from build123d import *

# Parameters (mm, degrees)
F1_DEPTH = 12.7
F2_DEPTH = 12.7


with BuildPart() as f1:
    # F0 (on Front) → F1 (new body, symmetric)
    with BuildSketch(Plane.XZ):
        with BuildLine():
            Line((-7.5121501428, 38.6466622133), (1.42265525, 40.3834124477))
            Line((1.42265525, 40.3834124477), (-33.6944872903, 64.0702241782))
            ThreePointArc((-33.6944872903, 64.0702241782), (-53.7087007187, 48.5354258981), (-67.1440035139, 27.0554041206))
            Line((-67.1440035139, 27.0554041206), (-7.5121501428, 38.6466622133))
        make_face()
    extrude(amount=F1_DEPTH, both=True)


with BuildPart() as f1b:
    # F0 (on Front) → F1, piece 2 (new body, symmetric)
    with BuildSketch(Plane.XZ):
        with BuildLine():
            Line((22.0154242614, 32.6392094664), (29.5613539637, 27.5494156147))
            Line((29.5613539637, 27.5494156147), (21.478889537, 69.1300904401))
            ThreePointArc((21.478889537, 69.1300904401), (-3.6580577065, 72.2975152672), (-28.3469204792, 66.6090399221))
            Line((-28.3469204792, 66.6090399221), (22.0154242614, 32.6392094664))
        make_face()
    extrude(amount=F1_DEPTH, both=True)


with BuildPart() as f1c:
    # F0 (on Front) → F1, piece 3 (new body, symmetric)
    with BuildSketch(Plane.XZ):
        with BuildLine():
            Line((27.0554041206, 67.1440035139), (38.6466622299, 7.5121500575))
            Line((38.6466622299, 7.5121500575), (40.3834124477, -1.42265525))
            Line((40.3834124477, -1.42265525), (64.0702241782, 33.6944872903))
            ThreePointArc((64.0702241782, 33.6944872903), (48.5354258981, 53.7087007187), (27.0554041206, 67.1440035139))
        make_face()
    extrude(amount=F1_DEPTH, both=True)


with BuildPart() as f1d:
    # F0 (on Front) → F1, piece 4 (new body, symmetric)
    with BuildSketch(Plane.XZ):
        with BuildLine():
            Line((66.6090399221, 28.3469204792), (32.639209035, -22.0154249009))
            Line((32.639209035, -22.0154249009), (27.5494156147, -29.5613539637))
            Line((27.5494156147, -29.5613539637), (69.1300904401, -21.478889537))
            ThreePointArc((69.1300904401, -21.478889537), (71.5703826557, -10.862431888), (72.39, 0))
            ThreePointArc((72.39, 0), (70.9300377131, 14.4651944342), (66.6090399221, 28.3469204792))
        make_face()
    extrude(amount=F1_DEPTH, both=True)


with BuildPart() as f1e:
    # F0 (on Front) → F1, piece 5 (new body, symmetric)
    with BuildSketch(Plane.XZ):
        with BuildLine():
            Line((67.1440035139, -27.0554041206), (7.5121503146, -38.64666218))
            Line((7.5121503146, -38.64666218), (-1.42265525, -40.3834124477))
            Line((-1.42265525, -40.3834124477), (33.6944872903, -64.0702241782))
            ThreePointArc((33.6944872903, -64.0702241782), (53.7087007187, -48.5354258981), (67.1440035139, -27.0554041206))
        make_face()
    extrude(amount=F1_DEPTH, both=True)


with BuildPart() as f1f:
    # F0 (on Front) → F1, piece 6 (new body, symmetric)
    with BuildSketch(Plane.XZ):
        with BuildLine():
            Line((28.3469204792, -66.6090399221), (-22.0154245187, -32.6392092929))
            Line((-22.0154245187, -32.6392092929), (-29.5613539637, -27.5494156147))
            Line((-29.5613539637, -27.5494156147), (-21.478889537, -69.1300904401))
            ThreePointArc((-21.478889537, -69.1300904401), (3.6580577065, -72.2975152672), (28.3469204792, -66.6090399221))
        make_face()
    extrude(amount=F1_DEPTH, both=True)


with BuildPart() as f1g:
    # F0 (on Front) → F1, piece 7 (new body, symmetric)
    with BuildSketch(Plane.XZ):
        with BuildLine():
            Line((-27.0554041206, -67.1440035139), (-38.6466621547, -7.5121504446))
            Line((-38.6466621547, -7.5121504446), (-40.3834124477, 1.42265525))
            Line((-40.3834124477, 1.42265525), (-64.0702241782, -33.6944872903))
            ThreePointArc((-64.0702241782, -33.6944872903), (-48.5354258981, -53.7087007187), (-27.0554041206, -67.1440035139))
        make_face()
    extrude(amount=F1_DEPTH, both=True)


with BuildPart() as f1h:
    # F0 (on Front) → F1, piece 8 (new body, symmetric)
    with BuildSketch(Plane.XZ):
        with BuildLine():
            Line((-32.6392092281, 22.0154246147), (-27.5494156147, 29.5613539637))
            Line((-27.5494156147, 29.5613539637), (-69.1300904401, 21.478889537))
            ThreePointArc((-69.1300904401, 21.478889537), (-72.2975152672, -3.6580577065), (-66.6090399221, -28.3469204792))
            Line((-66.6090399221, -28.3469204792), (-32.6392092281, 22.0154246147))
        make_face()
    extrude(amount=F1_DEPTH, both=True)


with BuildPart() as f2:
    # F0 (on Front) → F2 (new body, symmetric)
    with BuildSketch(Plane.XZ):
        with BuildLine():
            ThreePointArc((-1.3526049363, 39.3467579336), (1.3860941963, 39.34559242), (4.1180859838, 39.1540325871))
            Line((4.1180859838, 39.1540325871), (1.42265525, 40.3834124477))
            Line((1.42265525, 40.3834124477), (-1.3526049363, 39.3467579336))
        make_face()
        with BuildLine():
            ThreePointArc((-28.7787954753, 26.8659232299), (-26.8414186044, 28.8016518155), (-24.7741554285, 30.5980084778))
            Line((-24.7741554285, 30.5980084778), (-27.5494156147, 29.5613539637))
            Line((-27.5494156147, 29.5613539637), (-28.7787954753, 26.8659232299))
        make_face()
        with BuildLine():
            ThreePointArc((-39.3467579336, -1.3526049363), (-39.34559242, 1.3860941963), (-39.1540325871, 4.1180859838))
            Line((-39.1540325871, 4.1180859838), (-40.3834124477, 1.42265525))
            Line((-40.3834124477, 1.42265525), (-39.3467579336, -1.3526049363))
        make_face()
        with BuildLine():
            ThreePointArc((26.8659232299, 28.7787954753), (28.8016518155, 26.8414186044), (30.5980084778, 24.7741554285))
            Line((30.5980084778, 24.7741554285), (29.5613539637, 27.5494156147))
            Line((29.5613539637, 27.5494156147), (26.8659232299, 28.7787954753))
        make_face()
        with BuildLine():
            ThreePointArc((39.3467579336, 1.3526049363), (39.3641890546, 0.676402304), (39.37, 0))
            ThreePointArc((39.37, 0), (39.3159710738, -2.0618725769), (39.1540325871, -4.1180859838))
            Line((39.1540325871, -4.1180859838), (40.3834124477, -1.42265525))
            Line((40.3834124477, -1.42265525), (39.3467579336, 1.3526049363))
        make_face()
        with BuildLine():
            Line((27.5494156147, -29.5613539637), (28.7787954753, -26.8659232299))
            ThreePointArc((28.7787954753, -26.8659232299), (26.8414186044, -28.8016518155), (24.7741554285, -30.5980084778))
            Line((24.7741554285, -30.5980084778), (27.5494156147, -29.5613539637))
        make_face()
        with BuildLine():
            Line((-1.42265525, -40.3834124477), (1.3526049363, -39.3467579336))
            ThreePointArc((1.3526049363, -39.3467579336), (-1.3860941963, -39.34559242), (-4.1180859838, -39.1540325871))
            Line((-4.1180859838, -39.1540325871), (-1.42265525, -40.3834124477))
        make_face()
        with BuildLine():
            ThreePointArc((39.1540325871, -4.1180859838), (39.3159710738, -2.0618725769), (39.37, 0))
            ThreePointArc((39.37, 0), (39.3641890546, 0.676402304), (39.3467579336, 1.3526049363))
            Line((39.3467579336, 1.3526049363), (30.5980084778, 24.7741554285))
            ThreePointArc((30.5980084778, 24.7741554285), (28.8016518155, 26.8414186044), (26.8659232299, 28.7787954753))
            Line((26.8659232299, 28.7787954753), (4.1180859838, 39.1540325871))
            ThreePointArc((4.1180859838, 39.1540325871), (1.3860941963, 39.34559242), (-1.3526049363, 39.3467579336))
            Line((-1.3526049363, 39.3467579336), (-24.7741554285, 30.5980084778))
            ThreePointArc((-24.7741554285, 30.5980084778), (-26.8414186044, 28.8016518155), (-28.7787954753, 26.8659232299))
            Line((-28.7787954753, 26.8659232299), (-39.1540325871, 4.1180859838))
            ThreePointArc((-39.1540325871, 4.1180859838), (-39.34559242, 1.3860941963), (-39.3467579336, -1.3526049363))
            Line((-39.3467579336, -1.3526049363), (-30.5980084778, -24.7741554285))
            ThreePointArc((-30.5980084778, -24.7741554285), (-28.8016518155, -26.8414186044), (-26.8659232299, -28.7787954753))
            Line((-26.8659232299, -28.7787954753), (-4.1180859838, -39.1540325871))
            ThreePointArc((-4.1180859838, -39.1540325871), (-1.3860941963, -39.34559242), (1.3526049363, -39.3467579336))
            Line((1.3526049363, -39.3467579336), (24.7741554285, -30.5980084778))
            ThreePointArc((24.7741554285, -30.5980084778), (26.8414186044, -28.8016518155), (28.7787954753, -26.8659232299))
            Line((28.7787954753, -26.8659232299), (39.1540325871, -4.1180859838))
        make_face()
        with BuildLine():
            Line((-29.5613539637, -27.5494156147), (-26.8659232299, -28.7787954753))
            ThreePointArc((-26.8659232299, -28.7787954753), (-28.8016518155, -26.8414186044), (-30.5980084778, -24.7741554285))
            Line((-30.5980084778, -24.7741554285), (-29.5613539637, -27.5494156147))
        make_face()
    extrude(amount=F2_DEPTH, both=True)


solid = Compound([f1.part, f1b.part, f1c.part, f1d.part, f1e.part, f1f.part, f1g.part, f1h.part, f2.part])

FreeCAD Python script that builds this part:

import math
import FreeCAD as App
import Part
import Sketcher
from FreeCAD import Vector
Q = App.Units.Quantity

doc = App.newDocument("Part")
body = doc.addObject("PartDesign::Body", "Body")

# Sketch on XZ plane
sketch1 = body.newObject("Sketcher::SketchObject", "Sketch")
sketch1.AttachmentSupport = (doc.getObject("XZ_Plane"), [""])
sketch1.MapMode = "FlatFace"
sketch1.addGeometry([
    Part.LineSegment(Vector(-7.51215, 38.646662, 0), Vector(1.422655, 40.383412, 0)),
    Part.LineSegment(Vector(1.422655, 40.383412, 0), Vector(-33.694487, 64.070224, 0)),
    Part.ArcOfCircle(Part.Circle(Vector(0, 0, 0), Vector(0, 0, 1), 72.39), math.radians(117.739852), math.radians(158.05323)),
    Part.LineSegment(Vector(-67.144004, 27.055404, 0), Vector(-7.51215, 38.646662, 0)),
], False)
sketch1.addConstraint([
    Sketcher.Constraint("Coincident", 0, 2, 1, 1),
    Sketcher.Constraint("Coincident", 1, 2, 2, 1),
    Sketcher.Constraint("Coincident", 2, 2, 3, 1),
    Sketcher.Constraint("Coincident", 3, 2, 0, 1),
    Sketcher.Constraint("Coincident", 2, 3, -1, 1),
    Sketcher.Constraint("Parallel", 0, 3),
    Sketcher.Constraint("Radius", 2, Q("2.85 in")),
    Sketcher.Constraint("Angle", 0, Q("11 deg")),
    Sketcher.Constraint("Angle", 1, Q("146 deg")),
    Sketcher.Constraint("DistanceX", 3, 2, -1, 1, Q("7.51215 mm")),
    Sketcher.Constraint("DistanceY", 0, 2, 1, 2, Q("23.686812 mm")),
    Sketcher.Constraint("DistanceX", 2, 2, 0, 2, Q("68.566659 mm")),
])
pad1 = body.newObject("PartDesign::Pad", "Pad")
pad1.Profile = sketch1
pad1.Length = Q("1 in")
pad1.Midplane = True
body2 = doc.addObject("PartDesign::Body", "Body001")

# Sketch on XZ plane
sketch2 = body2.newObject("Sketcher::SketchObject", "Sketch001")
sketch2.AttachmentSupport = (doc.getObject("XZ_Plane001"), [""])
sketch2.MapMode = "FlatFace"
sketch2.addGeometry([
    Part.LineSegment(Vector(29.561354, 27.549416, 0), Vector(21.47889, 69.13009, 0)),
    Part.ArcOfCircle(Part.Circle(Vector(0, 0, 0), Vector(0, 0, 1), 72.39), math.radians(72.739852), math.radians(113.05323)),
    Part.LineSegment(Vector(-28.34692, 66.60904, 0), Vector(29.561354, 27.549416, 0)),
], False)
sketch2.addConstraint([
    Sketcher.Constraint("Coincident", 0, 2, 1, 1),
    Sketcher.Constraint("Coincident", 1, 2, 2, 1),
    Sketcher.Constraint("Coincident", 2, 2, 0, 1),
    Sketcher.Constraint("Coincident", 1, 3, -1, 1),
    Sketcher.Constraint("Radius", 1, Q("2.85 in")),
    Sketcher.Constraint("Angle", 0, Q("101 deg")),
    Sketcher.Constraint("Angle", 2, Q("-34 deg")),
    Sketcher.Constraint("Distance", 2, Q("2.75 in")),
    Sketcher.Constraint("DistanceX", -1, 1, 0, 2, Q("21.47889 mm")),
])
pad2 = body2.newObject("PartDesign::Pad", "Pad001")
pad2.Profile = sketch2
pad2.Length = Q("1 in")
pad2.Midplane = True
body3 = doc.addObject("PartDesign::Body", "Body002")

# Sketch on XZ plane
sketch3 = body3.newObject("Sketcher::SketchObject", "Sketch002")
sketch3.AttachmentSupport = (doc.getObject("XZ_Plane002"), [""])
sketch3.MapMode = "FlatFace"
sketch3.addGeometry([
    Part.LineSegment(Vector(27.055404, 67.144004, 0), Vector(38.646662, 7.51215, 0)),
    Part.LineSegment(Vector(38.646662, 7.51215, 0), Vector(40.383412, -1.422655, 0)),
    Part.LineSegment(Vector(40.383412, -1.422655, 0), Vector(64.070224, 33.694487, 0)),
    Part.ArcOfCircle(Part.Circle(Vector(0, 0, 0), Vector(0, 0, 1), 72.39), math.radians(27.739852), math.radians(68.05323)),
], False)
sketch3.addConstraint([
    Sketcher.Constraint("Coincident", 0, 2, 1, 1),
    Sketcher.Constraint("Coincident", 1, 2, 2, 1),
    Sketcher.Constraint("Coincident", 2, 2, 3, 1),
    Sketcher.Constraint("Coincident", 3, 2, 0, 1),
    Sketcher.Constraint("Coincident", 3, 3, -1, 1),
    Sketcher.Constraint("Parallel", 0, 1),
    Sketcher.Constraint("Radius", 3, Q("2.85 in")),
    Sketcher.Constraint("Angle", 0, Q("-79 deg")),
    Sketcher.Constraint("Angle", 2, Q("56 deg")),
    Sketcher.Constraint("DistanceY", -1, 1, 0, 2, Q("7.51215 mm")),
    Sketcher.Constraint("DistanceX", 0, 2, 1, 2, Q("1.73675 mm")),
    Sketcher.Constraint("DistanceX", 0, 2, 2, 2, Q("25.423562 mm")),
])
pad3 = body3.newObject("PartDesign::Pad", "Pad002")
pad3.Profile = sketch3
pad3.Length = Q("1 in")
pad3.Midplane = True
body4 = doc.addObject("PartDesign::Body", "Body003")

# Sketch on XZ plane
sketch4 = body4.newObject("Sketcher::SketchObject", "Sketch003")
sketch4.AttachmentSupport = (doc.getObject("XZ_Plane003"), [""])
sketch4.MapMode = "FlatFace"
sketch4.addGeometry([
    Part.LineSegment(Vector(66.60904, 28.34692, 0), Vector(32.639209, -22.015425, 0)),  # 0
    Part.LineSegment(Vector(32.639209, -22.015425, 0), Vector(27.549416, -29.561354, 0)),  # 1
    Part.LineSegment(Vector(27.549416, -29.561354, 0), Vector(69.13009, -21.47889, 0)),  # 2
    Part.ArcOfCircle(Part.Circle(Vector(0, 0, 0), Vector(0, 0, 1), 72.39), math.radians(-17.260148), math.radians(0)),  # 3
    Part.ArcOfCircle(Part.Circle(Vector(0, 0, 0), Vector(0, 0, 1), 72.39), math.radians(0), math.radians(23.05323)),  # 4
], False)
sketch4.addConstraint([
    Sketcher.Constraint("Coincident", 0, 2, 1, 1),
    Sketcher.Constraint("Coincident", 1, 2, 2, 1),
    Sketcher.Constraint("Coincident", 2, 2, 3, 1),
    Sketcher.Constraint("Tangent", 3, 2, 4, 1),
    Sketcher.Constraint("Coincident", 4, 2, 0, 1),
    Sketcher.Constraint("Coincident", 3, 3, -1, 1),
    Sketcher.Constraint("Equal", 3, 4),
    Sketcher.Constraint("PointOnObject", 3, 2, -1),
    Sketcher.Constraint("Parallel", 0, 1),
    Sketcher.Constraint("Radius", 3, Q("2.85 in")),
    Sketcher.Constraint("Angle", 0, Q("-124 deg")),
    Sketcher.Constraint("Angle", 2, Q("11 deg")),
    Sketcher.Constraint("DistanceX", -1, 1, 0, 2, Q("32.639209 mm")),
    Sketcher.Constraint("DistanceX", -1, 1, 2, 2, Q("69.13009 mm")),
    Sketcher.Constraint("DistanceX", -1, 1, 4, 2, Q("66.60904 mm")),
])
pad4 = body4.newObject("PartDesign::Pad", "Pad003")
pad4.Profile = sketch4
pad4.Length = Q("1 in")
pad4.Midplane = True
body5 = doc.addObject("PartDesign::Body", "Body004")

# Sketch on XZ plane
sketch5 = body5.newObject("Sketcher::SketchObject", "Sketch004")
sketch5.AttachmentSupport = (doc.getObject("XZ_Plane004"), [""])
sketch5.MapMode = "FlatFace"
sketch5.addGeometry([
    Part.LineSegment(Vector(67.144004, -27.055404, 0), Vector(7.51215, -38.646662, 0)),
    Part.LineSegment(Vector(7.51215, -38.646662, 0), Vector(-1.422655, -40.383412, 0)),
    Part.LineSegment(Vector(-1.422655, -40.383412, 0), Vector(33.694487, -64.070224, 0)),
    Part.ArcOfCircle(Part.Circle(Vector(0, 0, 0), Vector(0, 0, 1), 72.39), math.radians(-62.260148), math.radians(-21.94677)),
], False)
sketch5.addConstraint([
    Sketcher.Constraint("Coincident", 0, 2, 1, 1),
    Sketcher.Constraint("Coincident", 1, 2, 2, 1),
    Sketcher.Constraint("Coincident", 2, 2, 3, 1),
    Sketcher.Constraint("Coincident", 3, 2, 0, 1),
    Sketcher.Constraint("Coincident", 3, 3, -1, 1),
    Sketcher.Constraint("Parallel", 0, 1),
    Sketcher.Constraint("Radius", 3, Q("2.85 in")),
    Sketcher.Constraint("Angle", 0, Q("-169 deg")),
    Sketcher.Constraint("Angle", 2, Q("-34 deg")),
    Sketcher.Constraint("DistanceX", -1, 1, 0, 2, Q("7.51215 mm")),
    Sketcher.Constraint("DistanceY", 1, 2, 0, 2, Q("1.73675 mm")),
    Sketcher.Constraint("DistanceY", 2, 2, 0, 2, Q("25.423562 mm")),
])
pad5 = body5.newObject("PartDesign::Pad", "Pad004")
pad5.Profile = sketch5
pad5.Length = Q("1 in")
pad5.Midplane = True
body6 = doc.addObject("PartDesign::Body", "Body005")

# Sketch on XZ plane
sketch6 = body6.newObject("Sketcher::SketchObject", "Sketch005")
sketch6.AttachmentSupport = (doc.getObject("XZ_Plane005"), [""])
sketch6.MapMode = "FlatFace"
sketch6.addGeometry([
    Part.LineSegment(Vector(28.34692, -66.60904, 0), Vector(-22.015425, -32.639209, 0)),
    Part.LineSegment(Vector(-22.015425, -32.639209, 0), Vector(-29.561354, -27.549416, 0)),
    Part.LineSegment(Vector(-29.561354, -27.549416, 0), Vector(-21.47889, -69.13009, 0)),
    Part.ArcOfCircle(Part.Circle(Vector(0, 0, 0), Vector(0, 0, 1), 72.39), math.radians(-107.260148), math.radians(-66.94677)),
], False)
sketch6.addConstraint([
    Sketcher.Constraint("Coincident", 0, 2, 1, 1),
    Sketcher.Constraint("Coincident", 1, 2, 2, 1),
    Sketcher.Constraint("Coincident", 2, 2, 3, 1),
    Sketcher.Constraint("Coincident", 3, 2, 0, 1),
    Sketcher.Constraint("Coincident", 3, 3, -1, 1),
    Sketcher.Constraint("Parallel", 0, 1),
    Sketcher.Constraint("Radius", 3, Q("2.85 in")),
    Sketcher.Constraint("Angle", 0, Q("146 deg")),
    Sketcher.Constraint("Angle", 2, Q("-79 deg")),
    Sketcher.Constraint("DistanceY", 0, 2, -1, 1, Q("32.639209 mm")),
    Sketcher.Constraint("DistanceX", 2, 2, -1, 1, Q("21.47889 mm")),
    Sketcher.Constraint("DistanceX", -1, 1, 3, 2, Q("28.34692 mm")),
])
pad6 = body6.newObject("PartDesign::Pad", "Pad005")
pad6.Profile = sketch6
pad6.Length = Q("1 in")
pad6.Midplane = True
body7 = doc.addObject("PartDesign::Body", "Body006")

# Sketch on XZ plane
sketch7 = body7.newObject("Sketcher::SketchObject", "Sketch006")
sketch7.AttachmentSupport = (doc.getObject("XZ_Plane006"), [""])
sketch7.MapMode = "FlatFace"
sketch7.addGeometry([
    Part.LineSegment(Vector(-27.055404, -67.144004, 0), Vector(-40.383412, 1.422655, 0)),
    Part.LineSegment(Vector(-40.383412, 1.422655, 0), Vector(-64.070224, -33.694487, 0)),
    Part.ArcOfCircle(Part.Circle(Vector(0, 0, 0), Vector(0, 0, 1), 72.39), math.radians(-152.260148), math.radians(-111.94677)),
], False)
sketch7.addConstraint([
    Sketcher.Constraint("Coincident", 0, 2, 1, 1),
    Sketcher.Constraint("Coincident", 1, 2, 2, 1),
    Sketcher.Constraint("Coincident", 2, 2, 0, 1),
    Sketcher.Constraint("Coincident", 2, 3, -1, 1),
    Sketcher.Constraint("Radius", 2, Q("2.85 in")),
    Sketcher.Constraint("Angle", 0, Q("101 deg")),
    Sketcher.Constraint("Angle", 1, Q("-124 deg")),
    Sketcher.Constraint("Distance", 0, Q("2.75 in")),
    Sketcher.Constraint("DistanceX", 1, 2, 0, 2, Q("23.686812 mm")),
])
pad7 = body7.newObject("PartDesign::Pad", "Pad006")
pad7.Profile = sketch7
pad7.Length = Q("1 in")
pad7.Midplane = True
body8 = doc.addObject("PartDesign::Body", "Body007")

# Sketch on XZ plane
sketch8 = body8.newObject("Sketcher::SketchObject", "Sketch007")
sketch8.AttachmentSupport = (doc.getObject("XZ_Plane007"), [""])
sketch8.MapMode = "FlatFace"
sketch8.addGeometry([
    Part.LineSegment(Vector(-27.549416, 29.561354, 0), Vector(-69.13009, 21.47889, 0)),
    Part.ArcOfCircle(Part.Circle(Vector(0, 0, 0), Vector(0, 0, 1), 72.39), math.radians(162.739852), math.radians(203.05323)),
    Part.LineSegment(Vector(-66.60904, -28.34692, 0), Vector(-27.549416, 29.561354, 0)),
], False)
sketch8.addConstraint([
    Sketcher.Constraint("Coincident", 0, 2, 1, 1),
    Sketcher.Constraint("Coincident", 1, 2, 2, 1),
    Sketcher.Constraint("Coincident", 2, 2, 0, 1),
    Sketcher.Constraint("Coincident", 1, 3, -1, 1),
    Sketcher.Constraint("Radius", 1, Q("2.85 in")),
    Sketcher.Constraint("Angle", 0, Q("-169 deg")),
    Sketcher.Constraint("Angle", 2, Q("56 deg")),
    Sketcher.Constraint("Distance", 2, Q("2.75 in")),
    Sketcher.Constraint("DistanceX", 0, 2, -1, 1, Q("69.13009 mm")),
])
pad8 = body8.newObject("PartDesign::Pad", "Pad007")
pad8.Profile = sketch8
pad8.Length = Q("1 in")
pad8.Midplane = True
body9 = doc.addObject("PartDesign::Body", "Body008")

# Sketch on XZ plane
sketch9 = body9.newObject("Sketcher::SketchObject", "Sketch008")
sketch9.AttachmentSupport = (doc.getObject("XZ_Plane008"), [""])
sketch9.MapMode = "FlatFace"
sketch9.addGeometry([
    Part.LineSegment(Vector(4.118086, 39.154033, 0), Vector(1.422655, 40.383412, 0)),  # 0
    Part.LineSegment(Vector(1.422655, 40.383412, 0), Vector(-1.352605, 39.346758, 0)),  # 1
    Part.LineSegment(Vector(-1.352605, 39.346758, 0), Vector(-24.774155, 30.598008, 0)),  # 2
    Part.LineSegment(Vector(-24.774155, 30.598008, 0), Vector(-27.549416, 29.561354, 0)),  # 3
    Part.LineSegment(Vector(-27.549416, 29.561354, 0), Vector(-28.778795, 26.865923, 0)),  # 4
    Part.LineSegment(Vector(-28.778795, 26.865923, 0), Vector(-39.154033, 4.118086, 0)),  # 5
    Part.LineSegment(Vector(-39.154033, 4.118086, 0), Vector(-40.383412, 1.422655, 0)),  # 6
    Part.LineSegment(Vector(-40.383412, 1.422655, 0), Vector(-39.346758, -1.352605, 0)),  # 7
    Part.LineSegment(Vector(-39.346758, -1.352605, 0), Vector(-30.598008, -24.774155, 0)),  # 8
    Part.LineSegment(Vector(-30.598008, -24.774155, 0), Vector(-29.561354, -27.549416, 0)),  # 9
    Part.LineSegment(Vector(-29.561354, -27.549416, 0), Vector(-26.865923, -28.778795, 0)),  # 10
    Part.LineSegment(Vector(-26.865923, -28.778795, 0), Vector(-4.118086, -39.154033, 0)),  # 11
    Part.LineSegment(Vector(-4.118086, -39.154033, 0), Vector(-1.422655, -40.383412, 0)),  # 12
    Part.LineSegment(Vector(-1.422655, -40.383412, 0), Vector(1.352605, -39.346758, 0)),  # 13
    Part.LineSegment(Vector(1.352605, -39.346758, 0), Vector(24.774155, -30.598008, 0)),  # 14
    Part.LineSegment(Vector(24.774155, -30.598008, 0), Vector(27.549416, -29.561354, 0)),  # 15
    Part.LineSegment(Vector(27.549416, -29.561354, 0), Vector(28.778795, -26.865923, 0)),  # 16
    Part.LineSegment(Vector(28.778795, -26.865923, 0), Vector(39.154033, -4.118086, 0)),  # 17
    Part.LineSegment(Vector(39.154033, -4.118086, 0), Vector(40.383412, -1.422655, 0)),  # 18
    Part.LineSegment(Vector(40.383412, -1.422655, 0), Vector(39.346758, 1.352605, 0)),  # 19
    Part.LineSegment(Vector(39.346758, 1.352605, 0), Vector(30.598008, 24.774155, 0)),  # 20
    Part.LineSegment(Vector(30.598008, 24.774155, 0), Vector(29.561354, 27.549416, 0)),  # 21
    Part.LineSegment(Vector(29.561354, 27.549416, 0), Vector(26.865923, 28.778795, 0)),  # 22
    Part.LineSegment(Vector(26.865923, 28.778795, 0), Vector(4.118086, 39.154033, 0)),  # 23
], False)
sketch9.addConstraint([
    Sketcher.Constraint("Coincident", 0, 2, 1, 1),
    Sketcher.Constraint("Coincident", 1, 2, 2, 1),
    Sketcher.Constraint("Coincident", 2, 2, 3, 1),
    Sketcher.Constraint("Coincident", 3, 2, 4, 1),
    Sketcher.Constraint("Coincident", 4, 2, 5, 1),
    Sketcher.Constraint("Coincident", 5, 2, 6, 1),
    Sketcher.Constraint("Coincident", 6, 2, 7, 1),
    Sketcher.Constraint("Coincident", 7, 2, 8, 1),
    Sketcher.Constraint("Coincident", 8, 2, 9, 1),
    Sketcher.Constraint("Coincident", 9, 2, 10, 1),
    Sketcher.Constraint("Coincident", 10, 2, 11, 1),
    Sketcher.Constraint("Coincident", 11, 2, 12, 1),
    Sketcher.Constraint("Coincident", 12, 2, 13, 1),
    Sketcher.Constraint("Coincident", 13, 2, 14, 1),
    Sketcher.Constraint("Coincident", 14, 2, 15, 1),
    Sketcher.Constraint("Coincident", 15, 2, 16, 1),
    Sketcher.Constraint("Coincident", 16, 2, 17, 1),
    Sketcher.Constraint("Coincident", 17, 2, 18, 1),
    Sketcher.Constraint("Coincident", 18, 2, 19, 1),
    Sketcher.Constraint("Coincident", 19, 2, 20, 1),
    Sketcher.Constraint("Coincident", 20, 2, 21, 1),
    Sketcher.Constraint("Coincident", 21, 2, 22, 1),
    Sketcher.Constraint("Coincident", 22, 2, 23, 1),
    Sketcher.Constraint("Coincident", 23, 2, 0, 1),
    Sketcher.Constraint("DistanceY", 6, 2, 3, 2, Q("28.138699 mm")),
    Sketcher.Constraint("DistanceY", 9, 2, 5, 2, Q("31.667502 mm")),
    Sketcher.Constraint("DistanceX", 9, 2, 12, 2, Q("28.138699 mm")),
    Sketcher.Constraint("DistanceX", 11, 2, 15, 2, Q("31.667502 mm")),
    Sketcher.Constraint("DistanceY", 15, 2, 18, 2, Q("28.138699 mm")),
    Sketcher.Constraint("DistanceX", 0, 2, 21, 2, Q("28.138699 mm")),
    Sketcher.Constraint("DistanceY", -1, 1, 2, 2, Q("30.598008 mm")),
    Sketcher.Constraint("DistanceX", 8, 2, -1, 1, Q("30.598008 mm")),
    Sketcher.Constraint("DistanceY", 14, 2, -1, 1, Q("30.598008 mm")),
    Sketcher.Constraint("DistanceX", -1, 1, 20, 2, Q("30.598008 mm")),
    Sketcher.Constraint("DistanceX", 1, 2, 0, 2, Q("2.77526 mm")),
    Sketcher.Constraint("DistanceX", 2, 2, 1, 2, Q("23.42155 mm")),
    Sketcher.Constraint("DistanceY", 2, 2, 1, 2, Q("8.748749 mm")),
    Sketcher.Constraint("DistanceX", 3, 2, 2, 2, Q("2.77526 mm")),
    Sketcher.Constraint("DistanceY", 3, 2, 0, 2, Q("10.822058 mm")),
    Sketcher.Constraint("DistanceX", 4, 2, 3, 2, Q("1.22938 mm")),
    Sketcher.Constraint("DistanceY", 4, 2, 3, 2, Q("2.695431 mm")),
    Sketcher.Constraint("DistanceY", 5, 2, 1, 2, Q("35.228672 mm")),
    Sketcher.Constraint("DistanceX", 6, 2, 5, 2, Q("1.22938 mm")),
    Sketcher.Constraint("DistanceY", 6, 2, 5, 2, Q("2.695431 mm")),
    Sketcher.Constraint("DistanceY", 7, 2, 6, 2, Q("2.77526 mm")),
    Sketcher.Constraint("DistanceX", 7, 2, 8, 2, Q("8.748749 mm")),
    Sketcher.Constraint("DistanceY", 8, 2, 7, 2, Q("23.42155 mm")),
    Sketcher.Constraint("DistanceX", 6, 2, 9, 2, Q("10.822058 mm")),
    Sketcher.Constraint("DistanceX", 9, 2, 4, 2, Q("0.782558 mm")),
    Sketcher.Constraint("DistanceX", 9, 2, 10, 2, Q("2.695431 mm")),
    Sketcher.Constraint("DistanceY", 10, 2, 9, 2, Q("1.22938 mm")),
    Sketcher.Constraint("DistanceX", 7, 2, 11, 2, Q("35.228672 mm")),
    Sketcher.Constraint("DistanceX", 11, 2, 12, 2, Q("2.695431 mm")),
    Sketcher.Constraint("DistanceY", 12, 2, 11, 2, Q("1.22938 mm")),
    Sketcher.Constraint("DistanceX", 12, 2, 13, 2, Q("2.77526 mm")),
    Sketcher.Constraint("DistanceX", 13, 2, 14, 2, Q("23.42155 mm")),
    Sketcher.Constraint("DistanceY", 13, 2, 14, 2, Q("8.748749 mm")),
    Sketcher.Constraint("DistanceY", 12, 2, 15, 2, Q("10.822058 mm")),
    Sketcher.Constraint("DistanceY", 15, 2, 10, 2, Q("0.782558 mm")),
    Sketcher.Constraint("DistanceX", 15, 2, 16, 2, Q("1.22938 mm")),
    Sketcher.Constraint("DistanceY", 15, 2, 16, 2, Q("2.695431 mm")),
    Sketcher.Constraint("DistanceY", 13, 2, 17, 2, Q("35.228672 mm")),
    Sketcher.Constraint("DistanceX", 17, 2, 18, 2, Q("1.22938 mm")),
    Sketcher.Constraint("DistanceY", 18, 2, 19, 2, Q("2.77526 mm")),
    Sketcher.Constraint("DistanceX", 20, 2, 19, 2, Q("8.748749 mm")),
    Sketcher.Constraint("DistanceY", 19, 2, 20, 2, Q("23.42155 mm")),
    Sketcher.Constraint("DistanceY", 20, 2, 21, 2, Q("2.77526 mm")),
    Sketcher.Constraint("DistanceX", 21, 2, 18, 2, Q("10.822058 mm")),
    Sketcher.Constraint("DistanceX", 22, 2, 21, 2, Q("2.695431 mm")),
    Sketcher.Constraint("DistanceY", 21, 2, 22, 2, Q("1.22938 mm")),
    Sketcher.Constraint("DistanceX", 0, 2, 23, 2, Q("2.695431 mm")),
    Sketcher.Constraint("DistanceY", 23, 2, 0, 2, Q("1.22938 mm")),
])
pad9 = body9.newObject("PartDesign::Pad", "Pad008")
pad9.Profile = sketch9
pad9.Length = Q("1 in")
pad9.Midplane = True

doc.recompute()
